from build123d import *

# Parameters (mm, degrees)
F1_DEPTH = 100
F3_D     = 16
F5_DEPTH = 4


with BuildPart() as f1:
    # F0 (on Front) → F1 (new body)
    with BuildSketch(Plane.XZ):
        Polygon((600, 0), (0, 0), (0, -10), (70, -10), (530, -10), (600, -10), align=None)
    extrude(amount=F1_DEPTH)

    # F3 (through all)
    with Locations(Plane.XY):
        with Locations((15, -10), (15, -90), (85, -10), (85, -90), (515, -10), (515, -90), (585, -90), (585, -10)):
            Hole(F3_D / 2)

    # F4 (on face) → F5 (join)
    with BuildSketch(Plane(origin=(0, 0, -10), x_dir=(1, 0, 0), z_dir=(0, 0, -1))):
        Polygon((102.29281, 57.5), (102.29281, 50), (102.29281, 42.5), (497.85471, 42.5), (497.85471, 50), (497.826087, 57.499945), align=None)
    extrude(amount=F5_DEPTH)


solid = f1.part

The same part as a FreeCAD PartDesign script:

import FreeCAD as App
import Part
import Sketcher
Q = App.Units.Quantity

doc = App.newDocument("Part")
body = doc.addObject("PartDesign::Body", "Body")

sketch1 = body.newObject("Sketcher::SketchObject", "Sketch")
sketch1.AttachmentSupport = (doc.getObject("XZ_Plane"), [""])
sketch1.MapMode = "FlatFace"
sketch1.addGeometry([
    Part.LineSegment(App.Vector(600, 0, 0), App.Vector(0, 0, 0)),
    Part.LineSegment(App.Vector(0, 0, 0), App.Vector(0, -10, 0)),
    Part.LineSegment(App.Vector(0, -10, 0), App.Vector(600, -10, 0)),
    Part.LineSegment(App.Vector(600, -10, 0), App.Vector(600, 0, 0)),
], False)
sketch1.addConstraint([
    Sketcher.Constraint("Coincident", 0, 2, 1, 1),
    Sketcher.Constraint("Coincident", 1, 2, 2, 1),
    Sketcher.Constraint("Coincident", 2, 2, 3, 1),
    Sketcher.Constraint("Coincident", 3, 2, 0, 1),
    Sketcher.Constraint("Horizontal", 0),
    Sketcher.Constraint("Vertical", 1),
    Sketcher.Constraint("Horizontal", 2),
    Sketcher.Constraint("Vertical", 3),
    Sketcher.Constraint("Coincident", 0, 2, -1, 1),
    Sketcher.Constraint("DistanceX", 0, 2, 0, 1, 600.0),
    Sketcher.Constraint("DistanceY", 1, 2, 1, 1, 10.0),
])
pad1 = body.newObject("PartDesign::Pad", "Pad")
pad1.Profile = sketch1
pad1.Length = 100

sketch2 = body.newObject("Sketcher::SketchObject", "Sketch001")
sketch2.AttachmentSupport = (doc.getObject("XY_Plane"), [""])
sketch2.MapMode = "FlatFace"
sketch2.addGeometry([
    Part.Circle(App.Vector(15, -10, 0), App.Vector(0, 0, 1), 8),
    Part.Circle(App.Vector(15, -90, 0), App.Vector(0, 0, 1), 8),
    Part.Circle(App.Vector(85, -10, 0), App.Vector(0, 0, 1), 8),
    Part.Circle(App.Vector(85, -90, 0), App.Vector(0, 0, 1), 8),
    Part.Circle(App.Vector(515, -10, 0), App.Vector(0, 0, 1), 8),
    Part.Circle(App.Vector(515, -90, 0), App.Vector(0, 0, 1), 8),
    Part.Circle(App.Vector(585, -90, 0), App.Vector(0, 0, 1), 8),
    Part.Circle(App.Vector(585, -10, 0), App.Vector(0, 0, 1), 8),
], False)
sketch2.addConstraint([
    Sketcher.Constraint("Equal", 0, 1),
    Sketcher.Constraint("Equal", 1, 2),
    Sketcher.Constraint("Equal", 2, 3),
    Sketcher.Constraint("Equal", 3, 4),
    Sketcher.Constraint("Equal", 4, 5),
    Sketcher.Constraint("Equal", 5, 6),
    Sketcher.Constraint("Equal", 6, 7),
    Sketcher.Constraint("Horizontal", 0, 3, 2, 3),
    Sketcher.Constraint("Horizontal", 1, 3, 3, 3),
    Sketcher.Constraint("Horizontal", 2, 3, 4, 3),
    Sketcher.Constraint("Horizontal", 3, 3, 5, 3),
    Sketcher.Constraint("Horizontal", 5, 3, 6, 3),
    Sketcher.Constraint("Horizontal", 4, 3, 7, 3),
    Sketcher.Constraint("Vertical", 0, 3, 1, 3),
    Sketcher.Constraint("Vertical", 2, 3, 3, 3),
    Sketcher.Constraint("Vertical", 4, 3, 5, 3),
    Sketcher.Constraint("Vertical", 6, 3, 7, 3),
    Sketcher.Constraint("Diameter", 0, 16.0),
    Sketcher.Constraint("DistanceX", -1, 1, 0, 3, 15.0),
    Sketcher.Constraint("DistanceY", 0, 3, -1, 1, 10.0),
    Sketcher.Constraint("DistanceY", 1, 3, -1, 1, 90.0),
    Sketcher.Constraint("DistanceX", -1, 1, 2, 3, 85.0),
    Sketcher.Constraint("DistanceX", -1, 1, 4, 3, 515.0),
    Sketcher.Constraint("DistanceX", -1, 1, 6, 3, 585.0),
])
doc.recompute()
hole = body.newObject("PartDesign::Hole", "Hole")
hole.Profile = sketch2
hole.ThreadType = "None"
hole.Diameter = 16
hole.DepthType = "ThroughAll"

sketch3 = body.newObject("Sketcher::SketchObject", "Sketch002")
sketch3.AttachmentSupport = (doc.getObject("XY_Plane"), [""])
sketch3.MapMode = "FlatFace"
sketch3.AttachmentOffset = App.Placement(App.Vector(0, 0, -10), App.Rotation())
sketch3.addGeometry([
    Part.LineSegment(App.Vector(102.29281, -57.5, 0), App.Vector(102.29281, -42.5, 0)),
    Part.LineSegment(App.Vector(102.29281, -42.5, 0), App.Vector(497.85471, -42.5, 0)),
    Part.LineSegment(App.Vector(497.85471, -42.5, 0), App.Vector(497.85471, -50, 0)),
    Part.LineSegment(App.Vector(497.85471, -50, 0), App.Vector(497.826087, -57.499945, 0)),
    Part.LineSegment(App.Vector(497.826087, -57.499945, 0), App.Vector(102.29281, -57.5, 0)),
], False)
sketch3.addConstraint([
    Sketcher.Constraint("Coincident", 0, 2, 1, 1),
    Sketcher.Constraint("Coincident", 1, 2, 2, 1),
    Sketcher.Constraint("Coincident", 2, 2, 3, 1),
    Sketcher.Constraint("Coincident", 3, 2, 4, 1),
    Sketcher.Constraint("Coincident", 4, 2, 0, 1),
    Sketcher.Constraint("Vertical", 0),
    Sketcher.Constraint("Horizontal", 1),
    Sketcher.Constraint("Vertical", 2),
    Sketcher.Constraint("DistanceY", 0, 1, 0, 2, 15.0),
    Sketcher.Constraint("Angle", 4, Q("-179.999992 deg")),
    Sketcher.Constraint("DistanceY", 2, 2, 2, 1, 7.5),
    Sketcher.Constraint("DistanceY", 2, 2, -1, 1, 50.0),
    Sketcher.Constraint("Distance", 3, 7.5),
    Sketcher.Constraint("DistanceX", 1, 1, 1, 2, 395.5619),
    Sketcher.Constraint("DistanceX", -1, 1, 0, 2, 102.29281),
])
pad2 = body.newObject("PartDesign::Pad", "Pad001")
pad2.Profile = sketch3
pad2.Length = 4
pad2.Reversed = True

doc.recompute()
